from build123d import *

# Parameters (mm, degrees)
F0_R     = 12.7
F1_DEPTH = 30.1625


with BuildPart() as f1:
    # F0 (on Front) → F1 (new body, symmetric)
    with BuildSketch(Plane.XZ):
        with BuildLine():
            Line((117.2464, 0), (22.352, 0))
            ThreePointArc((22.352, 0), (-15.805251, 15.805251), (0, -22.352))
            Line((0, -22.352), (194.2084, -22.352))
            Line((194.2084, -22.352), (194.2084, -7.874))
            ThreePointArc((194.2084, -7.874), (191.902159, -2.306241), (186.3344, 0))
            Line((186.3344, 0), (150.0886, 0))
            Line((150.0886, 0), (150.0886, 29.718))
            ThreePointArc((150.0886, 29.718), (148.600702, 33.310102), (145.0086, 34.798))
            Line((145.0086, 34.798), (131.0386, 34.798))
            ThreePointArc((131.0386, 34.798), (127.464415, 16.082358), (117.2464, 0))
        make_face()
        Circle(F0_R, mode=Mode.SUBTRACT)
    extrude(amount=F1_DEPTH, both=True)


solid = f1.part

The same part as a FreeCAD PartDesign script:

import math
import FreeCAD as App
import Part
import Sketcher

V = App.Vector
Q = App.Units.Quantity

doc = App.newDocument("Part")
body = doc.addObject("PartDesign::Body", "Body")

# Sketch on XZ plane
sketch1 = body.newObject("Sketcher::SketchObject", "Sketch")
sketch1.AttachmentSupport = (doc.getObject("XZ_Plane"), [""])
sketch1.MapMode = "FlatFace"
sketch1.addGeometry([
    Part.LineSegment(V(117, 0, 0), V(22, 0, 0)),  # 0
    Part.ArcOfCircle(Part.Circle(V(0, 0, 0), V(0, 0, 1), 22), math.radians(0), math.radians(270)),  # 1
    Part.LineSegment(V(0, -22, 0), V(194, -22, 0)),  # 2
    Part.LineSegment(V(194, -22, 0), V(194, -8, 0)),  # 3
    Part.ArcOfCircle(Part.Circle(V(186, -8, 0), V(0, 0, 1), 8), math.radians(0), math.radians(90)),  # 4
    Part.LineSegment(V(186, 0, 0), V(150, 0, 0)),  # 5
    Part.LineSegment(V(150, 0, 0), V(150, 30, 0)),  # 6
    Part.ArcOfCircle(Part.Circle(V(145, 30, 0), V(0, 0, 1), 5), math.radians(0), math.radians(90)),  # 7
    Part.LineSegment(V(145, 35, 0), V(131, 35, 0)),  # 8
    Part.ArcOfCircle(Part.Circle(V(80, 35, 0), V(0, 0, 1), 51), math.radians(-43), math.radians(0)),  # 9
    Part.Circle(V(0, 0, 0), V(0, 0, 1), 13),  # 10
], False)
sketch1.addConstraint([
    Sketcher.Constraint("Coincident", 0, 2, 1, 1),
    Sketcher.Constraint("Tangent", 1, 2, 2, 1),
    Sketcher.Constraint("Coincident", 2, 2, 3, 1),
    Sketcher.Constraint("Tangent", 3, 2, 4, 1),
    Sketcher.Constraint("Tangent", 4, 2, 5, 1),
    Sketcher.Constraint("Coincident", 5, 2, 6, 1),
    Sketcher.Constraint("Tangent", 6, 2, 7, 1),
    Sketcher.Constraint("Tangent", 7, 2, 8, 1),
    Sketcher.Constraint("Coincident", 8, 2, 9, 2),
    Sketcher.Constraint("Coincident", 9, 1, 0, 1),
    Sketcher.Constraint("Horizontal", 0),
    Sketcher.Constraint("Horizontal", 2),
    Sketcher.Constraint("Vertical", 3),
    Sketcher.Constraint("Horizontal", 5),
    Sketcher.Constraint("Vertical", 6),
    Sketcher.Constraint("Horizontal", 8),
    Sketcher.Constraint("Coincident", 1, 3, -1, 1),
    Sketcher.Constraint("Coincident", 10, 3, -1, 1),
    Sketcher.Constraint("PointOnObject", 0, 2, -1),
    Sketcher.Constraint("PointOnObject", 4, 2, -1),
    Sketcher.Constraint("Diameter", 10, Q("1 in")),
    Sketcher.Constraint("Radius", 7, Q("0.2000001 in")),
    Sketcher.Constraint("Radius", 1, Q("0.88 in")),
    Sketcher.Constraint("Radius", 4, Q("0.31 in")),
    Sketcher.Constraint("DistanceX", 8, 2, 8, 1, Q("0.55 in")),
    Sketcher.Constraint("DistanceY", 6, 1, 6, 2, Q("1.17 in")),
    Sketcher.Constraint("DistanceX", 0, 2, 0, 1, Q("3.736 in")),
    Sketcher.Constraint("DistanceX", 2, 1, 2, 2, Q("7.646 in")),
    Sketcher.Constraint("DistanceX", 5, 2, 5, 1, Q("1.427 in")),
    Sketcher.Constraint("DistanceX", 9, 3, 7, 3, Q("2.5500002 in")),
])
pad1 = body.newObject("PartDesign::Pad", "Pad")
pad1.Profile = sketch1
pad1.Length = Q("2.375 in")
pad1.Midplane = True

doc.recompute()
